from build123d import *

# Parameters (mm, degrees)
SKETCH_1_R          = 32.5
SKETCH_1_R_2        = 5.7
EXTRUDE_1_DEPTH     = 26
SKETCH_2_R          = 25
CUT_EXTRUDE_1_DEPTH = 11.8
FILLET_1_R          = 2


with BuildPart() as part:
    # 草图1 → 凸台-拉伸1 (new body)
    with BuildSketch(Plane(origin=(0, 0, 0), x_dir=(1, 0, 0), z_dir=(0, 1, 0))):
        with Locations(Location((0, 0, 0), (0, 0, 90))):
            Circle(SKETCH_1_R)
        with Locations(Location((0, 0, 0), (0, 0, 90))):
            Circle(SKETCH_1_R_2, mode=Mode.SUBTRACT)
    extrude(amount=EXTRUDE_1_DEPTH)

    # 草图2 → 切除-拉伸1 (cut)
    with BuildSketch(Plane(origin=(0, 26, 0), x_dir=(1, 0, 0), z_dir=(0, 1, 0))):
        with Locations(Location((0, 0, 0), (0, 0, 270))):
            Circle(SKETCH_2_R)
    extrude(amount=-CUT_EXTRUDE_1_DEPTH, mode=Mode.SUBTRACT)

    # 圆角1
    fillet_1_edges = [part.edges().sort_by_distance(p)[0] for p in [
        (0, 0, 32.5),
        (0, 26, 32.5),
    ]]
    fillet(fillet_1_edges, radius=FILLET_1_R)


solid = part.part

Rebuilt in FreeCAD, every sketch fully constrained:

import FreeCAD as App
import Part
import Sketcher

V = App.Vector


def edges_at(feature, points):
    """Names of the edges that pass closest to the given points."""
    edges = feature.Shape.Edges
    near = lambda p: min(range(len(edges)), key=lambda i: edges[i].distToShape(Part.Vertex(*p))[0])
    return sorted({f"Edge{near(p) + 1}" for p in points})

doc = App.newDocument("Part")
params = doc.addObject("Spreadsheet::Sheet", "Params")
for row, (alias, value) in enumerate([
    ("sketch1_diameter", "65 mm"),
    ("sketch1_diameter2", "11.4 mm"),
    ("pad1_length", "26 mm"),
    ("sketch2_diameter", "50 mm"),
    ("pocket1_length", "11.8 mm"),
    ("fillet_radius", "2 mm"),
], start=1):
    params.set(f"A{row}", alias)
    params.set(f"B{row}", "=" + value)
    params.setAlias(f"B{row}", alias)

body = doc.addObject("PartDesign::Body", "Body")

# Sketch on XZ plane
sketch1 = doc.addObject("Sketcher::SketchObject", "Sketch")
body.addObject(sketch1)
sketch1.AttachmentSupport = (doc.XZ_Plane, [""])
sketch1.MapMode = "FlatFace"
sketch1.addGeometry([
    Part.Circle(V(0, 0, 0), V(0, 0, 1), 32.5),
    Part.Circle(V(0, 0, 0), V(0, 0, 1), 5.7),
], False)
sketch1.addConstraint([
    Sketcher.Constraint("Coincident", 0, 3, -1, 1),
    Sketcher.Constraint("Coincident", 1, 3, -1, 1),
    Sketcher.Constraint("Diameter", 0, 65.0),
    Sketcher.Constraint("Diameter", 1, 11.4),
])
sketch1.setExpression("Constraints[2]", "Params.sketch1_diameter")
sketch1.setExpression("Constraints[3]", "Params.sketch1_diameter2")
pad1 = doc.addObject("PartDesign::Pad", "Pad")
body.addObject(pad1)
pad1.Profile = sketch1
pad1.setExpression("Length", "Params.pad1_length")
pad1.Reversed = True

# Sketch on XZ plane
sketch2 = doc.addObject("Sketcher::SketchObject", "Sketch001")
body.addObject(sketch2)
sketch2.AttachmentSupport = (doc.XZ_Plane, [""])
sketch2.MapMode = "FlatFace"
sketch2.AttachmentOffset = App.Placement(V(0, 0, -26), App.Rotation())
sketch2.addGeometry(Part.Circle(V(0, 0, 0), V(0, 0, 1), 25), False)
sketch2.addConstraint([
    Sketcher.Constraint("Coincident", 0, 3, -1, 1),
    Sketcher.Constraint("Diameter", 0, 50.0),
])
sketch2.setExpression("Constraints[1]", "Params.sketch2_diameter")
pocket1 = doc.addObject("PartDesign::Pocket", "Pocket")
body.addObject(pocket1)
pocket1.Profile = sketch2
pocket1.setExpression("Length", "Params.pocket1_length")
pocket1.Reversed = True
doc.recompute()

fillet = doc.addObject("PartDesign::Fillet", "Fillet")
body.addObject(fillet)
fillet.Base = (pocket1, edges_at(pocket1, [(0, 0, 32.5), (0, 26, 32.5)]))
fillet.setExpression("Radius", "Params.fillet_radius")

doc.recompute()
